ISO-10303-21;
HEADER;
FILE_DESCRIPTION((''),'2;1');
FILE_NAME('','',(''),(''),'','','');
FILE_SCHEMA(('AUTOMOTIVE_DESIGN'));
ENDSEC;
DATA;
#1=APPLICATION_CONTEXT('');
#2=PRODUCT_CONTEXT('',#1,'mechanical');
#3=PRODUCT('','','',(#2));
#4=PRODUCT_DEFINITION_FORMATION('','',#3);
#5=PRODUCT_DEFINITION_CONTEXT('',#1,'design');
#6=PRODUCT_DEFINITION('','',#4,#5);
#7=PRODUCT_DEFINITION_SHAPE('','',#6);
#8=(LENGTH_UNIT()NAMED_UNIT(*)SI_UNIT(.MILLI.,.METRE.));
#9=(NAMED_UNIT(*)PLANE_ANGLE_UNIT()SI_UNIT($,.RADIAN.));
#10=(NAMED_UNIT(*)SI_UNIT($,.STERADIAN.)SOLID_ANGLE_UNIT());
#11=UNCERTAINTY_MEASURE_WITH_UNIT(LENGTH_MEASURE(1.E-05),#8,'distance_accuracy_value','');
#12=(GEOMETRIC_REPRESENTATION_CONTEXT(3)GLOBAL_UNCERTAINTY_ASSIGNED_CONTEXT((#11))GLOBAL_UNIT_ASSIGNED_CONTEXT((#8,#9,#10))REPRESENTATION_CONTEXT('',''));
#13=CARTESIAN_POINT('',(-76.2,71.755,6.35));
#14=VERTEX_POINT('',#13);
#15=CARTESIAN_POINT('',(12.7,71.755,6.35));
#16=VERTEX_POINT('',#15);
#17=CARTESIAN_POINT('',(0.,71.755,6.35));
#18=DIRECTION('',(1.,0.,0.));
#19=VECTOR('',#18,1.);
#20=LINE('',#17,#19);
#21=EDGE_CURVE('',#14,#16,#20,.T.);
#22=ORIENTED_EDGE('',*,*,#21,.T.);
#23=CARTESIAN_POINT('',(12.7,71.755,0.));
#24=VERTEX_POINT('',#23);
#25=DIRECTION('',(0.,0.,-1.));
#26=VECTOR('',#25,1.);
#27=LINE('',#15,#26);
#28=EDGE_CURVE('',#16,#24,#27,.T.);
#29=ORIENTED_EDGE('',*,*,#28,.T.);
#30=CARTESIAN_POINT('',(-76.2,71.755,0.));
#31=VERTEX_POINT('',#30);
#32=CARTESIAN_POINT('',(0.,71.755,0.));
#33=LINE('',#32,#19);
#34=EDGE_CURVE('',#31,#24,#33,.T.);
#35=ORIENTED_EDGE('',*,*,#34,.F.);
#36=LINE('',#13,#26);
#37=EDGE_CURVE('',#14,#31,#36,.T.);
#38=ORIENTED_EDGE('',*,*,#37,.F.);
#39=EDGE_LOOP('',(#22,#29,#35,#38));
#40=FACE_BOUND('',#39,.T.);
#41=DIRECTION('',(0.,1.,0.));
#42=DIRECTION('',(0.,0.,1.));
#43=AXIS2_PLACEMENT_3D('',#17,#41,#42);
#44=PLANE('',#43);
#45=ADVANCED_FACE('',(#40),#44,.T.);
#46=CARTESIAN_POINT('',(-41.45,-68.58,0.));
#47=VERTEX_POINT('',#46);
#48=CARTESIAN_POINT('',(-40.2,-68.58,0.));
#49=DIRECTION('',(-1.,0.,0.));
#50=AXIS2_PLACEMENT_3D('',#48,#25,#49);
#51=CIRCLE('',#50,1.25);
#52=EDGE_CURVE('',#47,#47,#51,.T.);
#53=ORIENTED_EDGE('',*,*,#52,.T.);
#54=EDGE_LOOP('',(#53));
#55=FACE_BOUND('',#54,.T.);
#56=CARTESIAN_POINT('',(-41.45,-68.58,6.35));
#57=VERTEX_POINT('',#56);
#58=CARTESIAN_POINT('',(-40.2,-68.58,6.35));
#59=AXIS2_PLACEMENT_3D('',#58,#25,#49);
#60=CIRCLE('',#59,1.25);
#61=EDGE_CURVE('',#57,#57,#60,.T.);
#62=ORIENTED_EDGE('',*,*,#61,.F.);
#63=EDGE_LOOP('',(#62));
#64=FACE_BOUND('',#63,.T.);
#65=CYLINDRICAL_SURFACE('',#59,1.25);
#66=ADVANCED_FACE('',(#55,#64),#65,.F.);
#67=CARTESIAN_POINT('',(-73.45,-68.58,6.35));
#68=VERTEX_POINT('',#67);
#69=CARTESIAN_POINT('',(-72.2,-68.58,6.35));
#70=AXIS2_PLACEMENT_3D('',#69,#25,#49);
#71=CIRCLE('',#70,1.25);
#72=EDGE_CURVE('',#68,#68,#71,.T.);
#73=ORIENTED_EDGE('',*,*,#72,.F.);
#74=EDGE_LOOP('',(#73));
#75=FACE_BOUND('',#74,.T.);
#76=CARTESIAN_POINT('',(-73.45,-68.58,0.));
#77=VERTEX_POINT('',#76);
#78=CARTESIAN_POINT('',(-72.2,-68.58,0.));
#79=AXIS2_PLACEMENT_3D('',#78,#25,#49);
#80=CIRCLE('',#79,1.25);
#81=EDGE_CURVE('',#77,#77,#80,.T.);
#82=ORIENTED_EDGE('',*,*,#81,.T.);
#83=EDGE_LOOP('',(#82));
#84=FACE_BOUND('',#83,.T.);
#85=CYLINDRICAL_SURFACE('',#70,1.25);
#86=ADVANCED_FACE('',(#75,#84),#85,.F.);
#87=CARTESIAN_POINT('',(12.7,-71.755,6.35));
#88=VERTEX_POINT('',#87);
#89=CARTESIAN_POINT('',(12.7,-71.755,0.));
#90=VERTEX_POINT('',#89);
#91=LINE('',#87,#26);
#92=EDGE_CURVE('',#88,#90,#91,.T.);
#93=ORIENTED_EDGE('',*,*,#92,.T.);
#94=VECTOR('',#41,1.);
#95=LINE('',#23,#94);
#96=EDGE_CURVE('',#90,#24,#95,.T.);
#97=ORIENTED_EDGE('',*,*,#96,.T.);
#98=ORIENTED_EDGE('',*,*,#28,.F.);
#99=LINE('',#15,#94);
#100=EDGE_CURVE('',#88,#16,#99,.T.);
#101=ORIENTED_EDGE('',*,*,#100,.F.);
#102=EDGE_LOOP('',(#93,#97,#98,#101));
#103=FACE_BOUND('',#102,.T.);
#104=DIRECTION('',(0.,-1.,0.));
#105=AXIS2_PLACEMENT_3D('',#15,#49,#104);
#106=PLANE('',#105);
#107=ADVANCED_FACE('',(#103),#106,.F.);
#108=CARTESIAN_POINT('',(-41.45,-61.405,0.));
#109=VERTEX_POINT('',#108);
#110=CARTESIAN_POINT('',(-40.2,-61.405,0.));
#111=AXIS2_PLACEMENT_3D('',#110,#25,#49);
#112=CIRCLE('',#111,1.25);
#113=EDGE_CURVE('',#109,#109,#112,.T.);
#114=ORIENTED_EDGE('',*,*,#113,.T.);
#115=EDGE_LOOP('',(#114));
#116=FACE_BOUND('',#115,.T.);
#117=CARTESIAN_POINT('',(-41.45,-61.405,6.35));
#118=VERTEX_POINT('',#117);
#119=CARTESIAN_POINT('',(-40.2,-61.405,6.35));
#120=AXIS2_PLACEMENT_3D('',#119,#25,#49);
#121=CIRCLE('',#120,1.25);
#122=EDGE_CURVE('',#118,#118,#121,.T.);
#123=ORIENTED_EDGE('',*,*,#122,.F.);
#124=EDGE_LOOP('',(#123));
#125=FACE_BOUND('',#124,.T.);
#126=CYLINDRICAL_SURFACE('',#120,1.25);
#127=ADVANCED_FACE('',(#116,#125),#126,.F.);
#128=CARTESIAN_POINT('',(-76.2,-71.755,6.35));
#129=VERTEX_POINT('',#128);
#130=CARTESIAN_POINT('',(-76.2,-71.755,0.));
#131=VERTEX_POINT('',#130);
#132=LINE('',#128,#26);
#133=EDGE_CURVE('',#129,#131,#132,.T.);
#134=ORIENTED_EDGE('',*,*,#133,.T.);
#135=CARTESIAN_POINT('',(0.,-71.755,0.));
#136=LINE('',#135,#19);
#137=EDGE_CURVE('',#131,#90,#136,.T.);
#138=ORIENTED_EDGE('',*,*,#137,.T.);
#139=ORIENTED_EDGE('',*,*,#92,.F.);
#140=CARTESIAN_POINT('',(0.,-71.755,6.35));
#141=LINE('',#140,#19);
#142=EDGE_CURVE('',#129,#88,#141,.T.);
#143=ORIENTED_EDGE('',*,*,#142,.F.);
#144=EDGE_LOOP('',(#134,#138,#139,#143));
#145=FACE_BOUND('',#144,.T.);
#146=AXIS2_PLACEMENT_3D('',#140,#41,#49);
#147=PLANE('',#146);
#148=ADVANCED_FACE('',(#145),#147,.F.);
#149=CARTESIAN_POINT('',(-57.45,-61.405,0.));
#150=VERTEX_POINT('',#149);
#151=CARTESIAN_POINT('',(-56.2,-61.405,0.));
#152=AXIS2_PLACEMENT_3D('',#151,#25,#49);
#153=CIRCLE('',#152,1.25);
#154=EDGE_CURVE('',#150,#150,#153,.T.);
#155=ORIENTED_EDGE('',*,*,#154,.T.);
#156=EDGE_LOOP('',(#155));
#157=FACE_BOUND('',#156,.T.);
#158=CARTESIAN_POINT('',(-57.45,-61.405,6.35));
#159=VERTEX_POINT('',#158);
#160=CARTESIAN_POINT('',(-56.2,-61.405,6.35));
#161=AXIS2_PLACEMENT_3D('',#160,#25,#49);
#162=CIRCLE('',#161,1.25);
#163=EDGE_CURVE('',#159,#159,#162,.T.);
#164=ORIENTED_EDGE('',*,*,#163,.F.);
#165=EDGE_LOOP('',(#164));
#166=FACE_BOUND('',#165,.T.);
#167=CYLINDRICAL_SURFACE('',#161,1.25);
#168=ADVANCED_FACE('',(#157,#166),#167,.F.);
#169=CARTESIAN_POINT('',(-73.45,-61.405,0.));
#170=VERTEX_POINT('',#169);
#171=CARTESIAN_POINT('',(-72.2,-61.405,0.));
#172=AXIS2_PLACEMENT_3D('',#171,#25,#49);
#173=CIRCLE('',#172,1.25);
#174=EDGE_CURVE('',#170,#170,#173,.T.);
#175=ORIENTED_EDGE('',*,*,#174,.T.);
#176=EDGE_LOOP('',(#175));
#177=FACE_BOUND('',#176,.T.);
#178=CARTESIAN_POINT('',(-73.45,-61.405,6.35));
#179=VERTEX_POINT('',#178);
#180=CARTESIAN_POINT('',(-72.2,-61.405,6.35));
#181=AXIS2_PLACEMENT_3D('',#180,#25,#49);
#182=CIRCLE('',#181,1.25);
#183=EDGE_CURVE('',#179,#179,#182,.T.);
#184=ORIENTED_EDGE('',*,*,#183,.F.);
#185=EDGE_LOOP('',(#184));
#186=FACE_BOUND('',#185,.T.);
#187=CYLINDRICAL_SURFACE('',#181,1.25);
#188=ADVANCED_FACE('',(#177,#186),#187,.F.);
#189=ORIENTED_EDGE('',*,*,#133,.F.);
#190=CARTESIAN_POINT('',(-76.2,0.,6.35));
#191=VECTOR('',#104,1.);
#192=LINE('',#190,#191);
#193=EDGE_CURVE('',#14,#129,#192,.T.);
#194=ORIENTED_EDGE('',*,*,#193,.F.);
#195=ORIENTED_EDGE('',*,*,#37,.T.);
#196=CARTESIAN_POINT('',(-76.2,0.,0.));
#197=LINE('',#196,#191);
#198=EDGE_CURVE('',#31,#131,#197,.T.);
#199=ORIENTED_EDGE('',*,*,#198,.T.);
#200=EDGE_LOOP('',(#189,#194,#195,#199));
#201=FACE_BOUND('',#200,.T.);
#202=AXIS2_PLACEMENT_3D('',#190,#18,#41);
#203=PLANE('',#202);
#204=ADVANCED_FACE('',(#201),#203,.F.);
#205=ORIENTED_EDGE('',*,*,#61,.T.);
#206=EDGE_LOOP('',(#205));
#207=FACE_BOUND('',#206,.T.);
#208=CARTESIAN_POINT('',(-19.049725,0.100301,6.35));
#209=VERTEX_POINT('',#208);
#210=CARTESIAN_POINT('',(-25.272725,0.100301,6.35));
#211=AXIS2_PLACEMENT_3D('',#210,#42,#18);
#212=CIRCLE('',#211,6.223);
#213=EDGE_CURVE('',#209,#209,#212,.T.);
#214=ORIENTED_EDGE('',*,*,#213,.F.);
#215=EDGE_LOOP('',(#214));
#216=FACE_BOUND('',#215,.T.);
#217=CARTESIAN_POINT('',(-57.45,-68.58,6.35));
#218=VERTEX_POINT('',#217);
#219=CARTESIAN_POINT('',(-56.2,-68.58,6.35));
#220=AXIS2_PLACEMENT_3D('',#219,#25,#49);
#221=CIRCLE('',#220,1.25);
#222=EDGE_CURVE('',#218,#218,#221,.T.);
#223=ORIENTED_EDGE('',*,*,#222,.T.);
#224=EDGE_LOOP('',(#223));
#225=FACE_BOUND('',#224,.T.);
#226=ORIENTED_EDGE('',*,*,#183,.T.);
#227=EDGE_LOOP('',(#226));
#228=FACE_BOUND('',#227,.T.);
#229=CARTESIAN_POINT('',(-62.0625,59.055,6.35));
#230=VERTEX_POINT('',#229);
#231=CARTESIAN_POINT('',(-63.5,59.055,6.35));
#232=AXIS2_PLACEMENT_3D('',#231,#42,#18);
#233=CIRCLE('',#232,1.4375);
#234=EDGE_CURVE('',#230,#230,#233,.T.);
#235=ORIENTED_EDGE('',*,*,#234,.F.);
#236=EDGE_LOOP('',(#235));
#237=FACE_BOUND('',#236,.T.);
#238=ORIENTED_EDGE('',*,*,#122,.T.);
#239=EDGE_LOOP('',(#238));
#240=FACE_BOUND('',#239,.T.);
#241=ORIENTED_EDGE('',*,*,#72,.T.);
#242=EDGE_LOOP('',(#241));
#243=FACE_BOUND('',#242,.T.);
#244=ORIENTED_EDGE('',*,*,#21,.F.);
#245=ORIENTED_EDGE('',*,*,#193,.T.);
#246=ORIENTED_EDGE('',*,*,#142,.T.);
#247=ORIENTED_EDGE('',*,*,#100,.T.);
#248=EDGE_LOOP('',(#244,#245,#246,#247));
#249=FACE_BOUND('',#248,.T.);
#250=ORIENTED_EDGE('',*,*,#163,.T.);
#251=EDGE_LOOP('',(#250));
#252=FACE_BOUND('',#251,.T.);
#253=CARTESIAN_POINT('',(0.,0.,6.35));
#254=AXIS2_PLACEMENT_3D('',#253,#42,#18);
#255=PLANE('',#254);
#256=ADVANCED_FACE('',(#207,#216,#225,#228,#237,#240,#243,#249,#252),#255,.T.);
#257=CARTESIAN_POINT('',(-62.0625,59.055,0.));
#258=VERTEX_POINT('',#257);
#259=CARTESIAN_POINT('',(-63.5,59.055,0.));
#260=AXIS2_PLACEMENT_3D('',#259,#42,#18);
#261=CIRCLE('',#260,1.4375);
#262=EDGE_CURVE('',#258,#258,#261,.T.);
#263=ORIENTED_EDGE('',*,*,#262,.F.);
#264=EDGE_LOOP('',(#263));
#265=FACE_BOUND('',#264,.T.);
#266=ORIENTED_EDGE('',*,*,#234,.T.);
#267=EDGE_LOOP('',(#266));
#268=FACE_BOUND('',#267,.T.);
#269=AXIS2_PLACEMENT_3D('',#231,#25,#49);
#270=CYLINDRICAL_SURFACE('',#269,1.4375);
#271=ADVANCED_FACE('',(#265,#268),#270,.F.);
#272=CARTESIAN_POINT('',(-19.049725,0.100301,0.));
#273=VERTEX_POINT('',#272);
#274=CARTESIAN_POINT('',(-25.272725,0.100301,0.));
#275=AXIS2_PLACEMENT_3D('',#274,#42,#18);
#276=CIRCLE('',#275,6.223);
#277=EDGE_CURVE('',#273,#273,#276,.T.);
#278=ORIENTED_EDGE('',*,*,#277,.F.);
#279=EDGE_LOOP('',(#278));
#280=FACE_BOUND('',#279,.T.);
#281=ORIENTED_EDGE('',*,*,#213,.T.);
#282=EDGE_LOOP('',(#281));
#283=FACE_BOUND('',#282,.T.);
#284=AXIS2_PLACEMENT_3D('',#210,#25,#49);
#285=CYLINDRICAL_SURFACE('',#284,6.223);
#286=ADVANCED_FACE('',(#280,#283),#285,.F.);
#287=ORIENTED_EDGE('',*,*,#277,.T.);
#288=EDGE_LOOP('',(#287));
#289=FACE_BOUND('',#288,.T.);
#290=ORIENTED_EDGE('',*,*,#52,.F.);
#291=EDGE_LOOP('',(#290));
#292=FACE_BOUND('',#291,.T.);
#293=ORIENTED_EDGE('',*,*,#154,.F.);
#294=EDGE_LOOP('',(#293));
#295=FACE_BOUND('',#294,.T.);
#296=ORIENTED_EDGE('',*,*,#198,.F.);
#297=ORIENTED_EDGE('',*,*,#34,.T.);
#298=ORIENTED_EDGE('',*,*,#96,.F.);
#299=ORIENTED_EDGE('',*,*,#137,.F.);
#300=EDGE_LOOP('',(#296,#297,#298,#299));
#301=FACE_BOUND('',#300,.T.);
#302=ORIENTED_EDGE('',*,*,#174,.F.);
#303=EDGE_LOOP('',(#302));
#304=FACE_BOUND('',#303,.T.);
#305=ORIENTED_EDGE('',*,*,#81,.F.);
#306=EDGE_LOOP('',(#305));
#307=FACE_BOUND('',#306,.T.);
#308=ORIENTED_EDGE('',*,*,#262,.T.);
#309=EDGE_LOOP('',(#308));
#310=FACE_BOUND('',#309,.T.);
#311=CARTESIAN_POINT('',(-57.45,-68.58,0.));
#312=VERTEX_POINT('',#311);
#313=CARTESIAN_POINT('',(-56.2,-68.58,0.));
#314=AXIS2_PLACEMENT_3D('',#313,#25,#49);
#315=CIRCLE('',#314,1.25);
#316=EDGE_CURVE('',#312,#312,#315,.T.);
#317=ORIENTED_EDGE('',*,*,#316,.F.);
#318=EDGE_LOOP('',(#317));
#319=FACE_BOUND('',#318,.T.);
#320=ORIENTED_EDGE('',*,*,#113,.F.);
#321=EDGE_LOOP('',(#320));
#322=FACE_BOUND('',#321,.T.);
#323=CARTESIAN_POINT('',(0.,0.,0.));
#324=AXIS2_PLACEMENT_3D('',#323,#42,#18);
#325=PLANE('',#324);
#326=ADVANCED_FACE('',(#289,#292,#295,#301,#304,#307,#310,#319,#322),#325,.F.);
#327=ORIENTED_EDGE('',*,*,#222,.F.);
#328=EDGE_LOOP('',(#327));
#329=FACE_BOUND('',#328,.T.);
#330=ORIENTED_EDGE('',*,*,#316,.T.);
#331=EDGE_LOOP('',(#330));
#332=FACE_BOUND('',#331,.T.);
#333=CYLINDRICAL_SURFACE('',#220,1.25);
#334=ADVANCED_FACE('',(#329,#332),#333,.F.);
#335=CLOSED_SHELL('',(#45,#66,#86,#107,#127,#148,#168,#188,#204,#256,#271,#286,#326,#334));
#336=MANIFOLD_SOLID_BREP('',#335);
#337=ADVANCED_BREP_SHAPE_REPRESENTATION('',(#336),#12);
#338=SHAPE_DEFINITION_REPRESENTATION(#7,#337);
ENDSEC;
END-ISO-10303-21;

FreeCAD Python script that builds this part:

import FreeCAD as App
import Part
import Sketcher

V = App.Vector
Q = App.Units.Quantity


def add_polygon(sketch, points):
    """Adds a closed chain of lines whose ends are joined by coincident constraints."""
    first, n = sketch.GeometryCount, len(points)
    for a, b in zip(points, points[1:] + points[:1]):
        sketch.addGeometry(Part.LineSegment(App.Vector(*a, 0), App.Vector(*b, 0)), False)
    for i in range(n):
        sketch.addConstraint(Sketcher.Constraint("Coincident", first + i, 2, first + (i + 1) % n, 1))

doc = App.newDocument("Part")
body = doc.addObject("PartDesign::Body", "Body")

# Sketch on XY plane
sketch1 = doc.addObject("Sketcher::SketchObject", "Sketch")
body.addObject(sketch1)
sketch1.AttachmentSupport = (doc.XY_Plane, [""])
sketch1.MapMode = "FlatFace"
add_polygon(sketch1, [(-76.2, 71.8), (-76.2, -71.8), (76.2, -71.8), (76.2, 71.8)])  # lines 0-3
sketch1.addGeometry(Part.Circle(V(-25.3, 0.1, 0), V(0, 0, 1), 6.2), False)  # 4
sketch1.addGeometry(Part.Circle(V(-63.5, 59.1, 0), V(0, 0, 1), 1.4), False)  # 5
sketch1.addConstraint(Sketcher.Constraint("Vertical", 0))
sketch1.addConstraint(Sketcher.Constraint("Horizontal", 1))
sketch1.addConstraint(Sketcher.Constraint("Vertical", 2))
sketch1.addConstraint(Sketcher.Constraint("Horizontal", 3))
sketch1.addConstraint(Sketcher.Constraint("Symmetric", 0, 2, 2, 2, -1, 1))
sketch1.addConstraint(Sketcher.Constraint("Diameter", 4, Q("0.49 in")))
sketch1.addConstraint(Sketcher.Constraint("DistanceX", 1, 1, 1, 2, Q("6 in")))
sketch1.addConstraint(Sketcher.Constraint("DistanceY", 0, 2, 0, 1, Q("5.65 in")))
sketch1.addConstraint(Sketcher.Constraint("DistanceX", 5, 3, -1, 1, Q("2.5 in")))
sketch1.addConstraint(Sketcher.Constraint("DistanceY", 5, 3, 2, 2, Q("0.5 in")))
sketch1.addConstraint(Sketcher.Constraint("Diameter", 5, 2.875))
sketch1.addConstraint(Sketcher.Constraint("DistanceY", -1, 1, 4, 3, 0.100301))
sketch1.addConstraint(Sketcher.Constraint("DistanceX", 4, 3, -1, 1, 25.272725))
pad1 = doc.addObject("PartDesign::Pad", "Pad")
body.addObject(pad1)
pad1.Profile = sketch1
pad1.Length = Q("0.25 in")

# Sketch on XY plane
sketch2 = doc.addObject("Sketcher::SketchObject", "Sketch001")
body.addObject(sketch2)
sketch2.AttachmentSupport = (doc.XY_Plane, [""])
sketch2.MapMode = "FlatFace"
sketch2.AttachmentOffset = App.Placement(V(0, 0, 0.25 * 25.4), App.Rotation())
sketch2.addGeometry(Part.Circle(V(63.5, 11.6, 0), V(0, 0, 1), 3.1), False)
sketch2.addConstraint(Sketcher.Constraint("Diameter", 0, Q("0.245 in")))
sketch2.addConstraint(Sketcher.Constraint("DistanceX", -1, 1, 0, 3, Q("2.5 in")))
sketch2.addConstraint(Sketcher.Constraint("DistanceY", -1, 1, 0, 3, 11.600301))
pocket1 = doc.addObject("PartDesign::Pocket", "Pocket")
body.addObject(pocket1)
pocket1.Profile = sketch2
pocket1.Type = "ThroughAll"

# Sketch on XY plane
sketch3 = doc.addObject("Sketcher::SketchObject", "Sketch002")
body.addObject(sketch3)
sketch3.AttachmentSupport = (doc.XY_Plane, [""])
sketch3.MapMode = "FlatFace"
sketch3.AttachmentOffset = App.Placement(V(0, 0, 0.25 * 25.4), App.Rotation())
sketch3.addGeometry(Part.Circle(V(43.8, -5.3, 0), V(0, 0, 1), 1.6), False)
sketch3.addGeometry(Part.Circle(V(43.8, -21.3, 0), V(0, 0, 1), 1.6), False)
sketch3.addGeometry(Part.Circle(V(43.8, -37.3, 0), V(0, 0, 1), 1.6), False)
sketch3.addGeometry(Part.Circle(V(43.8, 10.7, 0), V(0, 0, 1), 1.6), False)
sketch3.addConstraint(Sketcher.Constraint("Equal", 0, 1))
sketch3.addConstraint(Sketcher.Constraint("Equal", 1, 2))
sketch3.addConstraint(Sketcher.Constraint("Equal", 2, 3))
sketch3.addConstraint(Sketcher.Constraint("Vertical", 0, 3, 1, 3))
sketch3.addConstraint(Sketcher.Constraint("Vertical", 1, 3, 2, 3))
sketch3.addConstraint(Sketcher.Constraint("Vertical", 2, 3, 3, 3))
sketch3.addConstraint(Sketcher.Constraint("Diameter", 0, 3.25))
sketch3.addConstraint(Sketcher.Constraint("DistanceY", 1, 3, 0, 3, 16.0))
sketch3.addConstraint(Sketcher.Constraint("DistanceY", 2, 3, 1, 3, 16.0))
sketch3.addConstraint(Sketcher.Constraint("DistanceY", 0, 3, 3, 3, 16.0))
sketch3.addConstraint(Sketcher.Constraint("DistanceX", -1, 1, 0, 3, 43.849065))
sketch3.addConstraint(Sketcher.Constraint("DistanceY", 0, 3, -1, 1, 5.274915))
pocket2 = doc.addObject("PartDesign::Pocket", "Pocket001")
body.addObject(pocket2)
pocket2.Profile = sketch3
pocket2.Type = "ThroughAll"

# Sketch on XY plane
sketch4 = doc.addObject("Sketcher::SketchObject", "Sketch003")
body.addObject(sketch4)
sketch4.AttachmentSupport = (doc.XY_Plane, [""])
sketch4.MapMode = "FlatFace"
add_polygon(sketch4, [(76, 72), (76, -72), (13, -72), (13, 72)])  # lines 0-3
sketch4.addConstraint(Sketcher.Constraint("Vertical", 0))
sketch4.addConstraint(Sketcher.Constraint("Horizontal", 1))
sketch4.addConstraint(Sketcher.Constraint("Vertical", 2))
sketch4.addConstraint(Sketcher.Constraint("Horizontal", 3))
sketch4.addConstraint(Sketcher.Constraint("DistanceX", 1, 2, 1, 1, Q("2.5 in")))
sketch4.addConstraint(Sketcher.Constraint("DistanceX", -1, 1, 0, 2, Q("3 in")))
sketch4.addConstraint(Sketcher.Constraint("DistanceY", 0, 2, 0, 1, Q("5.65 in")))
sketch4.addConstraint(Sketcher.Constraint("DistanceY", 0, 2, -1, 1, Q("2.825 in")))
pocket3 = doc.addObject("PartDesign::Pocket", "Pocket002")
body.addObject(pocket3)
pocket3.Profile = sketch4
pocket3.Type = "ThroughAll"
pocket3.Reversed = True

# Sketch on XY plane
sketch5 = doc.addObject("Sketcher::SketchObject", "Sketch004")
body.addObject(sketch5)
sketch5.AttachmentSupport = (doc.XY_Plane, [""])
sketch5.MapMode = "FlatFace"
sketch5.addGeometry(Part.Circle(V(-72.2, -61.4, 0), V(0, 0, 1), 1.2), False)
sketch5.addGeometry(Part.Circle(V(-56.2, -61.4, 0), V(0, 0, 1), 1.2), False)
sketch5.addGeometry(Part.Circle(V(-40.2, -61.4, 0), V(0, 0, 1), 1.2), False)
sketch5.addGeometry(Part.Circle(V(-72.2, -68.6, 0), V(0, 0, 1), 1.2), False)
sketch5.addGeometry(Part.Circle(V(-56.2, -68.6, 0), V(0, 0, 1), 1.2), False)
sketch5.addGeometry(Part.Circle(V(-40.2, -68.6, 0), V(0, 0, 1), 1.2), False)
sketch5.addConstraint(Sketcher.Constraint("Equal", 0, 1))
sketch5.addConstraint(Sketcher.Constraint("Equal", 1, 2))
sketch5.addConstraint(Sketcher.Constraint("Equal", 2, 3))
sketch5.addConstraint(Sketcher.Constraint("Equal", 3, 4))
sketch5.addConstraint(Sketcher.Constraint("Equal", 4, 5))
sketch5.addConstraint(Sketcher.Constraint("Horizontal", 0, 3, 1, 3))
sketch5.addConstraint(Sketcher.Constraint("Horizontal", 1, 3, 2, 3))
sketch5.addConstraint(Sketcher.Constraint("Horizontal", 3, 3, 4, 3))
sketch5.addConstraint(Sketcher.Constraint("Horizontal", 4, 3, 5, 3))
sketch5.addConstraint(Sketcher.Constraint("Vertical", 0, 3, 3, 3))
sketch5.addConstraint(Sketcher.Constraint("Vertical", 1, 3, 4, 3))
sketch5.addConstraint(Sketcher.Constraint("Vertical", 2, 3, 5, 3))
sketch5.addConstraint(Sketcher.Constraint("DistanceY", 3, 3, -1, 1, Q("2.7 in")))
sketch5.addConstraint(Sketcher.Constraint("Diameter", 0, 2.5))
sketch5.addConstraint(Sketcher.Constraint("DistanceX", 0, 3, -1, 1, 72.2))
sketch5.addConstraint(Sketcher.Constraint("DistanceY", 0, 3, -1, 1, 61.405))
sketch5.addConstraint(Sketcher.Constraint("DistanceX", 1, 3, -1, 1, 56.2))
sketch5.addConstraint(Sketcher.Constraint("DistanceX", 2, 3, -1, 1, 40.2))
pocket4 = doc.addObject("PartDesign::Pocket", "Pocket003")
body.addObject(pocket4)
pocket4.Profile = sketch5
pocket4.Type = "ThroughAll"
pocket4.Reversed = True

doc.recompute()
